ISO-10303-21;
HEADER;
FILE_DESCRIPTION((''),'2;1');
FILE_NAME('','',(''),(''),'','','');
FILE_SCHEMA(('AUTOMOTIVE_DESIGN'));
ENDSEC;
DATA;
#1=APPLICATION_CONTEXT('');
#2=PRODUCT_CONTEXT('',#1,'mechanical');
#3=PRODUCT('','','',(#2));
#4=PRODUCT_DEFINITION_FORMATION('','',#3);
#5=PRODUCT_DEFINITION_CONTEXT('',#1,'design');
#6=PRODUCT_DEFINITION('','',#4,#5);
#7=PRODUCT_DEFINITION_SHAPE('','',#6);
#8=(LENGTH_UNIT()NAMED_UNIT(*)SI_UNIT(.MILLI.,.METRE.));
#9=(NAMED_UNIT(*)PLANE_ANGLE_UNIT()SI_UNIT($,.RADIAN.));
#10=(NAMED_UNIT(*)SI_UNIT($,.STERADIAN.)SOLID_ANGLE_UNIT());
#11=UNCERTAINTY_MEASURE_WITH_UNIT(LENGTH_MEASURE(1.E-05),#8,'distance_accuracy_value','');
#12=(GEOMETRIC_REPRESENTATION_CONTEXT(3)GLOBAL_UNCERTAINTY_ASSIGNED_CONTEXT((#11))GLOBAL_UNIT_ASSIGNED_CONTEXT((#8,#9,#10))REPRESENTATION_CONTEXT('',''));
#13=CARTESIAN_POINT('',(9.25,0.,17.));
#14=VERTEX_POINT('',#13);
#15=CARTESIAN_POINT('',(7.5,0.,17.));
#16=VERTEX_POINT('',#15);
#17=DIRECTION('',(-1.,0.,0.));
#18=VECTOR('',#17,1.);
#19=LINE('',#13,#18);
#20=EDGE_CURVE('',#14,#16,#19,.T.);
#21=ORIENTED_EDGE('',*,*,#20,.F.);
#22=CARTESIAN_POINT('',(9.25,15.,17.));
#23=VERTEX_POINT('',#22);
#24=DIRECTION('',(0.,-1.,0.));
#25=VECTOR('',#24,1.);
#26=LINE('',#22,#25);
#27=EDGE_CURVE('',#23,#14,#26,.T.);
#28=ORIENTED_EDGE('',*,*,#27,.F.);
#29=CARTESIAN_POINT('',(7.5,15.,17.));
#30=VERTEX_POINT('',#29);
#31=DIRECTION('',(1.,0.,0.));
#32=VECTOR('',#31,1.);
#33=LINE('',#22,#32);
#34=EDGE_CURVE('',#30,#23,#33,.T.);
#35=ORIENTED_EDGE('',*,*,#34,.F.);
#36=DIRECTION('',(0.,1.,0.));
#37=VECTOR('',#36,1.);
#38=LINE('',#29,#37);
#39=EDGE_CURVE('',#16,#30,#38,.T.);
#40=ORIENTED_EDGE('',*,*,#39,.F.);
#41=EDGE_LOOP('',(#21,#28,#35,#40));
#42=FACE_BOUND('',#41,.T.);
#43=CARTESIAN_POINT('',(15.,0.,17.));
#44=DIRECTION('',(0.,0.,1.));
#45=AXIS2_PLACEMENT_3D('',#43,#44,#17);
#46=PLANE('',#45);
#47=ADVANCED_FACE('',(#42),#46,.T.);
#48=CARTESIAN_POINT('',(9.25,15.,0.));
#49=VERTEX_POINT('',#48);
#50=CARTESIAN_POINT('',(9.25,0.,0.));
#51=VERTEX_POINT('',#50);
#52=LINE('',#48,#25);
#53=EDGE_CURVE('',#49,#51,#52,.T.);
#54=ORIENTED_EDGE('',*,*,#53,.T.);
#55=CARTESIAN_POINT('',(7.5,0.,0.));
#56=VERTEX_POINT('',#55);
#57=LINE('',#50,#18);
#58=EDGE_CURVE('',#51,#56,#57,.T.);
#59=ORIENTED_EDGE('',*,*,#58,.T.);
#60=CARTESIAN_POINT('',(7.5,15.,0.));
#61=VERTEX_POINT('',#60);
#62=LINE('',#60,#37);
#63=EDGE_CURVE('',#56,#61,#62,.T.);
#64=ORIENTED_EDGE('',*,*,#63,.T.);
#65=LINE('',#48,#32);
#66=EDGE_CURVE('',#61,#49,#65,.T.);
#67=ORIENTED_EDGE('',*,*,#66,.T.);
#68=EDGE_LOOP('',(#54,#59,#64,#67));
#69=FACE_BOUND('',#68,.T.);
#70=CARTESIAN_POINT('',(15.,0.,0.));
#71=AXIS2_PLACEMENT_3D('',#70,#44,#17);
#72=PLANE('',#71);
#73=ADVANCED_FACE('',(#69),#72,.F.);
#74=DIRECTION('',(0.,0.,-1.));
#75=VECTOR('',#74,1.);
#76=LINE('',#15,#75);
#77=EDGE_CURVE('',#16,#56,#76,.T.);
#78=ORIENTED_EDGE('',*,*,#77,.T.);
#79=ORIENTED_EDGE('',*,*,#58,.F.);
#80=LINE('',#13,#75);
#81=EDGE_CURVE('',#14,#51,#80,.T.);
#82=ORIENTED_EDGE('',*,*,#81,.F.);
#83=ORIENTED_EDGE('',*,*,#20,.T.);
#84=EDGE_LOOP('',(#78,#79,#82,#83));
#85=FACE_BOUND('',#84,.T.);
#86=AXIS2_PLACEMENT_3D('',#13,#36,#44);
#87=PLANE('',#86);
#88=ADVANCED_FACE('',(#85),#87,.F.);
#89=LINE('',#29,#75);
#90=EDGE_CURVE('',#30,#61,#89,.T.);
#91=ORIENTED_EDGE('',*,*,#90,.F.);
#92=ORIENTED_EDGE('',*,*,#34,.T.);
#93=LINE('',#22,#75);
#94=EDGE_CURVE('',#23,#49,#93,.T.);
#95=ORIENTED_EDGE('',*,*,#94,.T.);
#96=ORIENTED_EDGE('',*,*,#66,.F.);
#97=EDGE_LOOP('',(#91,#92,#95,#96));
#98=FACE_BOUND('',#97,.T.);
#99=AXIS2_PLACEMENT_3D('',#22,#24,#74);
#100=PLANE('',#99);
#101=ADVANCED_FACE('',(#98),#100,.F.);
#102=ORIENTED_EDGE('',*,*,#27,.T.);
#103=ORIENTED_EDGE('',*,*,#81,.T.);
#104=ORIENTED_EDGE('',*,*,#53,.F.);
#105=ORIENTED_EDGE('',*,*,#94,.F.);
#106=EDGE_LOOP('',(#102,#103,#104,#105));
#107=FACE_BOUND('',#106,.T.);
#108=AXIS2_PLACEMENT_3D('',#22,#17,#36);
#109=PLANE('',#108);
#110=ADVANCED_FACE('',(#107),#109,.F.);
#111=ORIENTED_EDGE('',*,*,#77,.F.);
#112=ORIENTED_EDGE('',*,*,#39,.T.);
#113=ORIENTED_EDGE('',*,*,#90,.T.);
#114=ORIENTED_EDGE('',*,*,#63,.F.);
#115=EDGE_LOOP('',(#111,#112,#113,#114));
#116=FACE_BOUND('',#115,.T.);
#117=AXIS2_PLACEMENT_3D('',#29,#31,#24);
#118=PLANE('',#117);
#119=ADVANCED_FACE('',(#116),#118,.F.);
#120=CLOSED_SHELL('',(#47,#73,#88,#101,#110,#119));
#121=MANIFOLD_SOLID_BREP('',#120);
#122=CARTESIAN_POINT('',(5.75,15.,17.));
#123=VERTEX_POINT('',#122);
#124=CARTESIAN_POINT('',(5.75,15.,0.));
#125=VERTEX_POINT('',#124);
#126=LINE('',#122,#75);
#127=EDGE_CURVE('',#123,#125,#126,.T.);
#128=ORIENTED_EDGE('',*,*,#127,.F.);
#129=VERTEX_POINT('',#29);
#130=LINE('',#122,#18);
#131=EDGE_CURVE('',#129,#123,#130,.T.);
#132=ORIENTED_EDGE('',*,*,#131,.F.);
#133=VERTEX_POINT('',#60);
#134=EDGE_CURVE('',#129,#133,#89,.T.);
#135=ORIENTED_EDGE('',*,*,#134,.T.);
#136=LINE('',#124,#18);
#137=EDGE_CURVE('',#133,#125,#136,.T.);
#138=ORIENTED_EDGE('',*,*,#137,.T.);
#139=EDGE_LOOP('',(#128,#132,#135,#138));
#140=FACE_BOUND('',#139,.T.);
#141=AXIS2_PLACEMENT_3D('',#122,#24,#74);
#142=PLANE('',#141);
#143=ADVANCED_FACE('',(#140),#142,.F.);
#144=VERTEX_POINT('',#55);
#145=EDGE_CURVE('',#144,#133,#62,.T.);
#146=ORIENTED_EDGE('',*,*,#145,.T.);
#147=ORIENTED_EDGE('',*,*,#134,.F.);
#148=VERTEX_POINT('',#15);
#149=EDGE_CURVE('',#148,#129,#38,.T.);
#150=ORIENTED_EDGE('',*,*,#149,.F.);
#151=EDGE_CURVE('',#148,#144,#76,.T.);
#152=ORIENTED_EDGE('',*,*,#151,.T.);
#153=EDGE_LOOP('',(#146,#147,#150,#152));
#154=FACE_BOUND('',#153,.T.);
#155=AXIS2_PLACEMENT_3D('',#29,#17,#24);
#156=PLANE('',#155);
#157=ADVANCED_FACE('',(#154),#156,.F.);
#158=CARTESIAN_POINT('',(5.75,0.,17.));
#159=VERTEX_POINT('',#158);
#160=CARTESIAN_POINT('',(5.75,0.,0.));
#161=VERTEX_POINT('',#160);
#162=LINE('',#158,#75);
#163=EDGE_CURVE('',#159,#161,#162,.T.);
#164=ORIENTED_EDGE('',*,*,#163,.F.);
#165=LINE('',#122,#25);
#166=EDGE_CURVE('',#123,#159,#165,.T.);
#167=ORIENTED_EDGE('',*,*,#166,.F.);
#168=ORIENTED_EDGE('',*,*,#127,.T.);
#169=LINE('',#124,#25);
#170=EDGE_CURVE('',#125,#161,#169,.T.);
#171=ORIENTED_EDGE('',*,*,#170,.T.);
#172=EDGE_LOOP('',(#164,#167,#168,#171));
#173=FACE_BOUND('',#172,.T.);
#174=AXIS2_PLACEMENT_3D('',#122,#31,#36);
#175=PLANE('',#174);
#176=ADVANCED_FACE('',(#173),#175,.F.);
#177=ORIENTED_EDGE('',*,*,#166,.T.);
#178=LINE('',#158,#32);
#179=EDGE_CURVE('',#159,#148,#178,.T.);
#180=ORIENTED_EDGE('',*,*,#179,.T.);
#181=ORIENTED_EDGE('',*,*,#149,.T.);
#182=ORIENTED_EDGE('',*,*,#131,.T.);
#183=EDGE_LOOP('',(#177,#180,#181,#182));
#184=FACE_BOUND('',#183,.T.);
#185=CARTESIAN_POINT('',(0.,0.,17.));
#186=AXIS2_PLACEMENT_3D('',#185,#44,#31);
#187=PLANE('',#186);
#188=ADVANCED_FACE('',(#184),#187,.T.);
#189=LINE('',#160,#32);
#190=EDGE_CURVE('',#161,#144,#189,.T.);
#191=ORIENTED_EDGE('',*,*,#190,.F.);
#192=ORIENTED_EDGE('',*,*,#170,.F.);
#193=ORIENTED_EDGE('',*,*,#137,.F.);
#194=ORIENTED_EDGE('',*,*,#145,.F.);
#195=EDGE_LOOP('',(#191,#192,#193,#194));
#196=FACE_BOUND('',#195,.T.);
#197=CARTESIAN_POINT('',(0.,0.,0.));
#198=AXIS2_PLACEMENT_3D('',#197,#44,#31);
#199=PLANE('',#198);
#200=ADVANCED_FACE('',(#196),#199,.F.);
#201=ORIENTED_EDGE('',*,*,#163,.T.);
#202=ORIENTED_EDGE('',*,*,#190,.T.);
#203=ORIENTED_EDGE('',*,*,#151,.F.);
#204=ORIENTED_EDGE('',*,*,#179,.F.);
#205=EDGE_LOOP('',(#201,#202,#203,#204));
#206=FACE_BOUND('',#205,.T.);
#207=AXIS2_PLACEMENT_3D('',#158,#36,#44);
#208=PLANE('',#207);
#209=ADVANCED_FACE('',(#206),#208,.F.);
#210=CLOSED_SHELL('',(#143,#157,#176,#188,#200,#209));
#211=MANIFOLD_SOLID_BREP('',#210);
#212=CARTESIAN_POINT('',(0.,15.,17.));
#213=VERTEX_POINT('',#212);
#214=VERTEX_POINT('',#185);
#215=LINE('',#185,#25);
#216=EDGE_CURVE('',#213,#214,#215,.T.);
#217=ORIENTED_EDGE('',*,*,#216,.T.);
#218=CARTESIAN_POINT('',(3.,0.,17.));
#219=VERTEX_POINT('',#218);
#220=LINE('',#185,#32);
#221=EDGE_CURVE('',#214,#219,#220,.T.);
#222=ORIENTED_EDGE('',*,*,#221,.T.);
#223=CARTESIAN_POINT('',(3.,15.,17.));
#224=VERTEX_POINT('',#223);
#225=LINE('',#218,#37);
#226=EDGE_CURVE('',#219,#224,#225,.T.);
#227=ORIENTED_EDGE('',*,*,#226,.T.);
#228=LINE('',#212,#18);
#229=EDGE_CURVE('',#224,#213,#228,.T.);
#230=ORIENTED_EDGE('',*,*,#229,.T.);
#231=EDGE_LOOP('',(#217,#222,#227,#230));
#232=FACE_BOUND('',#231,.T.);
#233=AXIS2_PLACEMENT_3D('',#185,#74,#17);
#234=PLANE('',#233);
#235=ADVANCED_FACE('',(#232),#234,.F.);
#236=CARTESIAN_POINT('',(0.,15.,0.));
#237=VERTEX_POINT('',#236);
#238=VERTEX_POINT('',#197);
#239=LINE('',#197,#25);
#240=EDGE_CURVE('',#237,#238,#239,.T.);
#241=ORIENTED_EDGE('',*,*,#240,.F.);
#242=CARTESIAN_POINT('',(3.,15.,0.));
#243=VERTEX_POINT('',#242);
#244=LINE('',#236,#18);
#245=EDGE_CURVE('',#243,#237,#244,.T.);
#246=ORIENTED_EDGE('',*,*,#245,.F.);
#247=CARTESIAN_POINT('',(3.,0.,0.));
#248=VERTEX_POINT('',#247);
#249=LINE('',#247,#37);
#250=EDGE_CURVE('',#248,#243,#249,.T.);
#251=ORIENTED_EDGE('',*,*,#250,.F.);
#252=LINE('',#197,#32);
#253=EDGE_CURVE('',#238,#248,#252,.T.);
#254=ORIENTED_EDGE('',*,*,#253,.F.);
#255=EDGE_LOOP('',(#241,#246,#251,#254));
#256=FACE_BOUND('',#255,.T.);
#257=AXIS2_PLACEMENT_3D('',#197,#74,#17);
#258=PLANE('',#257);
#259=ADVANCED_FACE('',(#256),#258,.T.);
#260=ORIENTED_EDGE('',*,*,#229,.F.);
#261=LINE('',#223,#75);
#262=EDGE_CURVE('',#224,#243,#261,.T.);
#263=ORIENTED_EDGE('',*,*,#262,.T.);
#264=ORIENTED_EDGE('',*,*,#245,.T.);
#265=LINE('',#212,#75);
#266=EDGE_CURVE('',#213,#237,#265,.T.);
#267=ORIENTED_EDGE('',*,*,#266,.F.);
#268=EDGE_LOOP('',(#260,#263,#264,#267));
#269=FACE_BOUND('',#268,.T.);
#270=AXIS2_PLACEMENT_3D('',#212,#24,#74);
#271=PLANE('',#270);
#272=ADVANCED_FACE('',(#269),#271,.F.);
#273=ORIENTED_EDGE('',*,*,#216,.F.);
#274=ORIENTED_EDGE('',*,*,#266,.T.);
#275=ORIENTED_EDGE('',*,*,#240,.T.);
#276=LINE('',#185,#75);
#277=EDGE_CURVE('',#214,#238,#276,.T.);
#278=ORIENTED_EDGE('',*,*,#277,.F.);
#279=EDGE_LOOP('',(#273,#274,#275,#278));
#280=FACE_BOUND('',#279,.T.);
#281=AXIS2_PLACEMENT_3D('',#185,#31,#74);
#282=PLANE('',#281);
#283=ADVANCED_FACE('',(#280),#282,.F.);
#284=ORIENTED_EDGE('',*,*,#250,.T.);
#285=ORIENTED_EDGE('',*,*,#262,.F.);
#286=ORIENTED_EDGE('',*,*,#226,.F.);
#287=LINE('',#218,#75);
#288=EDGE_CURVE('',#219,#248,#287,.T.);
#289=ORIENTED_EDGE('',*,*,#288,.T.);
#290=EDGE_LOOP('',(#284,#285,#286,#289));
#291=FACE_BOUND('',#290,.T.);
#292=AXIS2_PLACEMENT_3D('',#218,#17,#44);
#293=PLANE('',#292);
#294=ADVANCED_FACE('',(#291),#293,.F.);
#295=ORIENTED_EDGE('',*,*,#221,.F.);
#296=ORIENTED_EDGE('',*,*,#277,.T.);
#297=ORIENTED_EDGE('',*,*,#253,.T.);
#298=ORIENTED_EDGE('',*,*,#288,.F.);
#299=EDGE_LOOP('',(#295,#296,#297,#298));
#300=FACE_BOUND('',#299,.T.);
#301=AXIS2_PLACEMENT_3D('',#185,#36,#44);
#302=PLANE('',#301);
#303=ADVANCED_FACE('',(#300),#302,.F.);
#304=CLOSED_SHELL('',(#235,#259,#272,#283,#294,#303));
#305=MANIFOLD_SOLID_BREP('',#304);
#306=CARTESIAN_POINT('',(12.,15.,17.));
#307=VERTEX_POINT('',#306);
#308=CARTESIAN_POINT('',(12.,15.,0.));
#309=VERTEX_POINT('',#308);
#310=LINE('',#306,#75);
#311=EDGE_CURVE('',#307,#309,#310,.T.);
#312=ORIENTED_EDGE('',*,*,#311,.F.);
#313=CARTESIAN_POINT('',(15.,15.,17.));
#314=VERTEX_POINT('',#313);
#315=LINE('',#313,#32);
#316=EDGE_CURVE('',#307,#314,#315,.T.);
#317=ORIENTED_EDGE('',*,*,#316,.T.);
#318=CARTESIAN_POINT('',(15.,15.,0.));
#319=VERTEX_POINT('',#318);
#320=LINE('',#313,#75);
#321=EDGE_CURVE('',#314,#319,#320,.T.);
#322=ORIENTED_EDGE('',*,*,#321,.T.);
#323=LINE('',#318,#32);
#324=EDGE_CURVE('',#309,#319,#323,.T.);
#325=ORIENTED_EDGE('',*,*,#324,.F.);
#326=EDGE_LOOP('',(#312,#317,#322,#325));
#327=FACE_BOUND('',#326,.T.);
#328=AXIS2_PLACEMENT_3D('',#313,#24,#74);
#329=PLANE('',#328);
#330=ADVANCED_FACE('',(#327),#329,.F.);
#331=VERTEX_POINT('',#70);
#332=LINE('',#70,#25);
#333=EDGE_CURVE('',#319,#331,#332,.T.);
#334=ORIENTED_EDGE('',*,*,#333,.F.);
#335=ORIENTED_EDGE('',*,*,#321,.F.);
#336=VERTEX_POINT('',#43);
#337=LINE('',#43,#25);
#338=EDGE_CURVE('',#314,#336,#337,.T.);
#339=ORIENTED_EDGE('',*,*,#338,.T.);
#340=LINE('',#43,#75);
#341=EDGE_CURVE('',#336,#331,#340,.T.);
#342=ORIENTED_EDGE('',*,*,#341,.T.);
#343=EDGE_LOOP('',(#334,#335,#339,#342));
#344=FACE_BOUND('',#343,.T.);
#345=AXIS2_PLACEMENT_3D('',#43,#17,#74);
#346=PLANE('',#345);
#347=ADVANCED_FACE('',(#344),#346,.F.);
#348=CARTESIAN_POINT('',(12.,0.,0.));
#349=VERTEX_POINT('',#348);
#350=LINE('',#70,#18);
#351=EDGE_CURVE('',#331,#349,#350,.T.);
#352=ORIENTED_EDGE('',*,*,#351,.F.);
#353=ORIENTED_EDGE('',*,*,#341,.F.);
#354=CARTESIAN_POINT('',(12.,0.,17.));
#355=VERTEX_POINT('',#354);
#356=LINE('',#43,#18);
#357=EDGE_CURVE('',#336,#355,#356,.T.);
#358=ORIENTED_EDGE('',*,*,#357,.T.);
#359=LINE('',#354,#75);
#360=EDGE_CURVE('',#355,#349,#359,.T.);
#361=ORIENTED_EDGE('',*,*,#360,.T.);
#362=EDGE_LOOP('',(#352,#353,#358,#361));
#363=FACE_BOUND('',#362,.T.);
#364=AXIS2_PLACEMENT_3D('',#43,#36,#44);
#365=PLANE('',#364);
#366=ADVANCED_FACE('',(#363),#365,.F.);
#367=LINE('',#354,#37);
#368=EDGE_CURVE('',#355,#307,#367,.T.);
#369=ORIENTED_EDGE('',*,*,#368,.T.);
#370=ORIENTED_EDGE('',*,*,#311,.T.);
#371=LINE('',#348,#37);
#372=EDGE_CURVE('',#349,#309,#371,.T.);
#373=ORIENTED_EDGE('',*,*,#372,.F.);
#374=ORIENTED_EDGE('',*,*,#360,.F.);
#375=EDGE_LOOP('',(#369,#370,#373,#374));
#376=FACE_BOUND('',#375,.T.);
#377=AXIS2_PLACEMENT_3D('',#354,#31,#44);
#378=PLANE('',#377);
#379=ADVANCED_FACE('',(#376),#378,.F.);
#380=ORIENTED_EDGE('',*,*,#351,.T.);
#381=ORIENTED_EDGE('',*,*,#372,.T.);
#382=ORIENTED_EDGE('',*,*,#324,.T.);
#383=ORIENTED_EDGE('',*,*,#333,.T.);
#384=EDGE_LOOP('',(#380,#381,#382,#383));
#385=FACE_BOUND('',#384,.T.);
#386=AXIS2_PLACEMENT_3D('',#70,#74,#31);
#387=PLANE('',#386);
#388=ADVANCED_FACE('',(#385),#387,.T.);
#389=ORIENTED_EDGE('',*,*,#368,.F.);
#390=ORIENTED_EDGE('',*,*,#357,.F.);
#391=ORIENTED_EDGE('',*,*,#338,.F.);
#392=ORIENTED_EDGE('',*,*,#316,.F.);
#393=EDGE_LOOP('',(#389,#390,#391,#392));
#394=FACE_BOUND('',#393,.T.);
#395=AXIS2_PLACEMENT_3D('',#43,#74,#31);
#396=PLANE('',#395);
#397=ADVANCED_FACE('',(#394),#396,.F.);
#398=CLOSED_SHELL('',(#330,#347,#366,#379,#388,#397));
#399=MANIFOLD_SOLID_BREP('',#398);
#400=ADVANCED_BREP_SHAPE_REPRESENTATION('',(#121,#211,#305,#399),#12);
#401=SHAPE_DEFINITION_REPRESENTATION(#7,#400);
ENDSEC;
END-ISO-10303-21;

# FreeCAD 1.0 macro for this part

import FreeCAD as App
import Part
import Sketcher
from FreeCAD import Vector


def add_polygon(sketch, points):
    """Adds a closed chain of lines whose ends are joined by coincident constraints."""
    first, n = sketch.GeometryCount, len(points)
    for a, b in zip(points, points[1:] + points[:1]):
        sketch.addGeometry(Part.LineSegment(App.Vector(*a, 0), App.Vector(*b, 0)), False)
    for i in range(n):
        sketch.addConstraint(Sketcher.Constraint("Coincident", first + i, 2, first + (i + 1) % n, 1))

doc = App.newDocument("Part")
body = doc.addObject("PartDesign::Body", "Body")

# Sketch on XY plane
sketch1 = body.newObject("Sketcher::SketchObject", "Sketch")
sketch1.AttachmentSupport = (doc.getObject("XY_Plane"), [""])
sketch1.MapMode = "FlatFace"
add_polygon(sketch1, [(0, 15), (0, 0), (3, 0), (3, 15)])  # lines 0-3
sketch1.addConstraint([
    Sketcher.Constraint("Vertical", 0),
    Sketcher.Constraint("Horizontal", 1),
    Sketcher.Constraint("Vertical", 2),
    Sketcher.Constraint("Horizontal", 3),
    Sketcher.Constraint("Coincident", 0, 2, -1, 1),
    Sketcher.Constraint("DistanceX", 1, 1, 1, 2, 3.0),
    Sketcher.Constraint("DistanceY", 0, 2, 0, 1, 15.0),
])
pad1 = body.newObject("PartDesign::Pad", "Pad")
pad1.Profile = sketch1
pad1.Length = 17
body2 = doc.addObject("PartDesign::Body", "Body001")

# Sketch on XY plane
sketch2 = body2.newObject("Sketcher::SketchObject", "Sketch001")
sketch2.AttachmentSupport = (doc.getObject("XY_Plane001"), [""])
sketch2.MapMode = "FlatFace"
add_polygon(sketch2, [(5.8, 15), (5.8, 0), (7.5, 0), (7.5, 15)])  # lines 0-3
sketch2.addConstraint([
    Sketcher.Constraint("Vertical", 0),
    Sketcher.Constraint("Horizontal", 1),
    Sketcher.Constraint("Vertical", 2),
    Sketcher.Constraint("Horizontal", 3),
    Sketcher.Constraint("PointOnObject", 0, 2, -1),
    Sketcher.Constraint("DistanceY", 0, 2, 0, 1, 15.0),
    Sketcher.Constraint("DistanceX", 1, 1, 1, 2, 1.75),
    Sketcher.Constraint("DistanceX", -1, 1, 1, 2, 7.5),
])
pad2 = body2.newObject("PartDesign::Pad", "Pad001")
pad2.Profile = sketch2
pad2.Length = 17
body3 = doc.addObject("PartDesign::Body", "Body002")
doc.recompute()

mirroring = doc.addObject("Part::Mirroring", "Mirroring")
mirroring.Source = body2
mirroring.Base = Vector(7.5, 15, 17)
mirroring.Normal = Vector(-1, 0, 0)
body3.BaseFeature = mirroring
doc.recompute()
body4 = doc.addObject("PartDesign::Body", "Body003")
doc.recompute()

mirroring2 = doc.addObject("Part::Mirroring", "Mirroring001")
mirroring2.Source = body
mirroring2.Base = Vector(7.5, 15, 17)
mirroring2.Normal = Vector(-1, 0, 0)
body4.BaseFeature = mirroring2
doc.recompute()
mirroring.Visibility = False
mirroring2.Visibility = False

doc.recompute()
